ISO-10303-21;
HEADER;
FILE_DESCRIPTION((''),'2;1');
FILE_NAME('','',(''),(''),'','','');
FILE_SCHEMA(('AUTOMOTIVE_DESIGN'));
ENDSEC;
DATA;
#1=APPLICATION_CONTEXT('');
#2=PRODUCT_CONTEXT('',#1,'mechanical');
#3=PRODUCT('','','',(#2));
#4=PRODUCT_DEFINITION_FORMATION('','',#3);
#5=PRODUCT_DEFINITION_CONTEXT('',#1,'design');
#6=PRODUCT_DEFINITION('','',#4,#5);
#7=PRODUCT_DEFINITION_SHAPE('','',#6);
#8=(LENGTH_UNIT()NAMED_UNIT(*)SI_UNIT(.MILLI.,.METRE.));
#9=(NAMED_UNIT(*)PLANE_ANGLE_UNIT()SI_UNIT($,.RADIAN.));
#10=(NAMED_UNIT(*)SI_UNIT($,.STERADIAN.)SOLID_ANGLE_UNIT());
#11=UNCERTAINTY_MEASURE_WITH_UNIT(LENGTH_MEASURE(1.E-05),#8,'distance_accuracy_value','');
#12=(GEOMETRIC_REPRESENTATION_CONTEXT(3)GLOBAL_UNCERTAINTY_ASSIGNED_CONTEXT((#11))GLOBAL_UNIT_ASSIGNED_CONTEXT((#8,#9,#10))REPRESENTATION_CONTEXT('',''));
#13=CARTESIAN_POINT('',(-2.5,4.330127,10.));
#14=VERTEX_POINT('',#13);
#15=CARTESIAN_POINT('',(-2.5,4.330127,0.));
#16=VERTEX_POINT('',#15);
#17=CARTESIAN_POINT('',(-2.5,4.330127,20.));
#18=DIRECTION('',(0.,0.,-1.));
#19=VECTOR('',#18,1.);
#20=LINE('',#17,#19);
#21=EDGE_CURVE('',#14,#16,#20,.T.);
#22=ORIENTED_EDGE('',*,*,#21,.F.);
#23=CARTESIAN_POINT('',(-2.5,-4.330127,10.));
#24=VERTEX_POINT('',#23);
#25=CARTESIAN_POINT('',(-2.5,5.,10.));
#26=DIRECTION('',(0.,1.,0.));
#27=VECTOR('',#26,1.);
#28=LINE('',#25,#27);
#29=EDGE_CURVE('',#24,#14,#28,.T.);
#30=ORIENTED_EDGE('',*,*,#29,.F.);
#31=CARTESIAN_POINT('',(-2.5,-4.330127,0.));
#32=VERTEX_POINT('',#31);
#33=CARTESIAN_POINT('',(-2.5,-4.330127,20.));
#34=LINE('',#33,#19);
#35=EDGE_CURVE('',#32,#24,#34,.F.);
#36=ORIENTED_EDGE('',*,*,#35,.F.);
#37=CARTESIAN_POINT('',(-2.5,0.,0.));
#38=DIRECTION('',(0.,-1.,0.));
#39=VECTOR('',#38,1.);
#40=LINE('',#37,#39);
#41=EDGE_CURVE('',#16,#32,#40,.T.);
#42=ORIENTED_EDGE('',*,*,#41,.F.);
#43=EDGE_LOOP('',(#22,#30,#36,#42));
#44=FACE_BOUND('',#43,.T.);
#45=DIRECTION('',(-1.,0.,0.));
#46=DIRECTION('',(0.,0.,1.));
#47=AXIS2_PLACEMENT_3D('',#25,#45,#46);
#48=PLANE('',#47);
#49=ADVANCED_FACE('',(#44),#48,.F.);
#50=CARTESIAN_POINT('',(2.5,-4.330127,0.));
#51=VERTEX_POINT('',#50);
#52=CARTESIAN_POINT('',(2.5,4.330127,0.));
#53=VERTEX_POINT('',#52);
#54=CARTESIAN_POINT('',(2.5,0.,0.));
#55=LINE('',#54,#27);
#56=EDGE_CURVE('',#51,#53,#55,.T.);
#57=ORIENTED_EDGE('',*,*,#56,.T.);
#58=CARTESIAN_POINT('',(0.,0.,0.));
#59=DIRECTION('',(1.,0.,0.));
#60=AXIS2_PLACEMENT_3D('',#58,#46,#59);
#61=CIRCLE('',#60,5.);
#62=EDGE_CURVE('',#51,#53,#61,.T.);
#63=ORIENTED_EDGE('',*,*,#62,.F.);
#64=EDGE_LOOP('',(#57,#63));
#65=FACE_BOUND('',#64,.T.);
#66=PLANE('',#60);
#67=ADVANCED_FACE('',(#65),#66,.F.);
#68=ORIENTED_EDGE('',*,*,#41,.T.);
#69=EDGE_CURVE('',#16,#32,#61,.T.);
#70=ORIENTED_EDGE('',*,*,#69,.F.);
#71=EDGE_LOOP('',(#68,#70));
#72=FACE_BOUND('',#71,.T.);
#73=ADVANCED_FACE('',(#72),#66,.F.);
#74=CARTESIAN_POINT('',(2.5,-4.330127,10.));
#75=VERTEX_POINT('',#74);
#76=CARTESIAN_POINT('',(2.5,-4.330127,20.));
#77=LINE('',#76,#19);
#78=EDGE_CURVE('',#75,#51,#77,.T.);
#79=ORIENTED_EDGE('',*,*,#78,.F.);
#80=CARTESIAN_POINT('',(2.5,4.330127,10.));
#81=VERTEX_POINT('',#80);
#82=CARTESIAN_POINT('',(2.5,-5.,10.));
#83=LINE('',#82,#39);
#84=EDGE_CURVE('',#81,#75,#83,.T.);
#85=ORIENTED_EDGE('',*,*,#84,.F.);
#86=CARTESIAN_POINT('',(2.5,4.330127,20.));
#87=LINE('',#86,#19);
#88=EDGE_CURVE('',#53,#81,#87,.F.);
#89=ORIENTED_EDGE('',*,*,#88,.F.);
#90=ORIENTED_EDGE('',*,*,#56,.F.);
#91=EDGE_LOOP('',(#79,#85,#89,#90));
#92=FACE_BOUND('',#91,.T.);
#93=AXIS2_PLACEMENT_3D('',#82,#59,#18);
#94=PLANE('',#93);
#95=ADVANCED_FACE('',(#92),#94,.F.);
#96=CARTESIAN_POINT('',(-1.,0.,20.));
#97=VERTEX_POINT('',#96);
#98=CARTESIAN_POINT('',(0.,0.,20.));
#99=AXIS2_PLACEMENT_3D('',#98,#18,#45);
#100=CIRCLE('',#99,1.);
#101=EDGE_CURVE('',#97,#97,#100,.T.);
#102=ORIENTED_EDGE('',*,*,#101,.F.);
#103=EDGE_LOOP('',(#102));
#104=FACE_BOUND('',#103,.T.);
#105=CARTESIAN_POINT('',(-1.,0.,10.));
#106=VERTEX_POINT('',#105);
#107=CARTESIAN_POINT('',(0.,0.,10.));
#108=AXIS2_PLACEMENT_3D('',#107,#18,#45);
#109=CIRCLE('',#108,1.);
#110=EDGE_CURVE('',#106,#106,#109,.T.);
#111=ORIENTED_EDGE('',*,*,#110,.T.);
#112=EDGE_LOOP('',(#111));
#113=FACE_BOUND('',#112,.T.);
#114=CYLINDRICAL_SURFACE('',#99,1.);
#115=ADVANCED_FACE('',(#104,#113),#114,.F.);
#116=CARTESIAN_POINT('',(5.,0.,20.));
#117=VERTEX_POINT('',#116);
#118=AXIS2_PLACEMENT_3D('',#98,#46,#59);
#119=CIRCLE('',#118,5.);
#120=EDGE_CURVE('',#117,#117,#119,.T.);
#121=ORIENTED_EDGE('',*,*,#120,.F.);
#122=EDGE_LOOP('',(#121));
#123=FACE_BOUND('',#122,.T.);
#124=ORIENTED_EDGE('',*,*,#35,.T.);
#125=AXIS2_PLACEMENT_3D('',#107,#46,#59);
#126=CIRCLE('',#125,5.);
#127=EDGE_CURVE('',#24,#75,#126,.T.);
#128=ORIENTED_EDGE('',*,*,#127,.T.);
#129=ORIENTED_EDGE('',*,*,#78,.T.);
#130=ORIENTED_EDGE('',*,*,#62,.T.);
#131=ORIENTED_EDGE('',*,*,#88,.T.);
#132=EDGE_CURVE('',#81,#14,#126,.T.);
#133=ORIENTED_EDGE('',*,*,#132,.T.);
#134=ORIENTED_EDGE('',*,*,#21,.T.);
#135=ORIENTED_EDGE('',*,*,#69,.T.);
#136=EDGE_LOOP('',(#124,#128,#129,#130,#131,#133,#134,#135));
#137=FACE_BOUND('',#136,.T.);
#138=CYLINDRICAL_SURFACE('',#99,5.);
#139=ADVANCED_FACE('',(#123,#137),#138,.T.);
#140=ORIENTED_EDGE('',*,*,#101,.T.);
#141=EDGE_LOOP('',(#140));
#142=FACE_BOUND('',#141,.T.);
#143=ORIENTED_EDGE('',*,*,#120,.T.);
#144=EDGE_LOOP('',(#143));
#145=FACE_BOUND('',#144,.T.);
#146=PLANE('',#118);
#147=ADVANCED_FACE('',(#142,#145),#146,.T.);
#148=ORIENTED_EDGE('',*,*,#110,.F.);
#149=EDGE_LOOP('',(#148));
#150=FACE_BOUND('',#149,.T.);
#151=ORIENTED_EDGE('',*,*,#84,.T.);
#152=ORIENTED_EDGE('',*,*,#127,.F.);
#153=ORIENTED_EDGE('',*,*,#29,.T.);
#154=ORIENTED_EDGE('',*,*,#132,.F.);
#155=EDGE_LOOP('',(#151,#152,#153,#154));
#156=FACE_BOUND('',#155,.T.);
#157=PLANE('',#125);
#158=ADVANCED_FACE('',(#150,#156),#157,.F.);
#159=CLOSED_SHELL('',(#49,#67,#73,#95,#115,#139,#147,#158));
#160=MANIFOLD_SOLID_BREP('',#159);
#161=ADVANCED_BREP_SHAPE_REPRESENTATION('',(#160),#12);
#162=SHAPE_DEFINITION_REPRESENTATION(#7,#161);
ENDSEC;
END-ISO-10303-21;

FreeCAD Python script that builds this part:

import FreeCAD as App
import Part
import Sketcher
from FreeCAD import Vector
Q = App.Units.Quantity

doc = App.newDocument("Part")
body = doc.addObject("PartDesign::Body", "Body")

# Sketch on XY plane
sketch1 = doc.addObject("Sketcher::SketchObject", "Sketch")
body.addObject(sketch1)
sketch1.AttachmentSupport = (doc.XY_Plane, [""])
sketch1.MapMode = "FlatFace"
sketch1.addGeometry(Part.Circle(Vector(0, 0, 0), Vector(0, 0, 1), 5), False)
sketch1.addConstraint([
    Sketcher.Constraint("Coincident", 0, 3, -1, 1),
    Sketcher.Constraint("Diameter", 0, Q("10 mm")),
])
pad1 = doc.addObject("PartDesign::Pad", "Pad")
body.addObject(pad1)
pad1.Profile = sketch1
pad1.Length = 20

# Sketch on XY plane
sketch2 = doc.addObject("Sketcher::SketchObject", "Sketch001")
body.addObject(sketch2)
sketch2.AttachmentSupport = (doc.XY_Plane, [""])
sketch2.MapMode = "FlatFace"
sketch2.addGeometry([
    Part.LineSegment(Vector(2, 5, 0), Vector(2, -5, 0)),
    Part.LineSegment(Vector(2, -5, 0), Vector(-2, -5, 0)),
    Part.LineSegment(Vector(-2, -5, 0), Vector(-2, 5, 0)),
    Part.LineSegment(Vector(-2, 5, 0), Vector(2, 5, 0)),
], False)
sketch2.addConstraint([
    Sketcher.Constraint("Coincident", 0, 2, 1, 1),
    Sketcher.Constraint("Coincident", 1, 2, 2, 1),
    Sketcher.Constraint("Coincident", 2, 2, 3, 1),
    Sketcher.Constraint("Coincident", 3, 2, 0, 1),
    Sketcher.Constraint("Vertical", 0),
    Sketcher.Constraint("Horizontal", 1),
    Sketcher.Constraint("Vertical", 2),
    Sketcher.Constraint("Horizontal", 3),
    Sketcher.Constraint("Symmetric", 0, 2, 2, 2, -1, 1),
    Sketcher.Constraint("DistanceX", 1, 2, 1, 1, Q("5 mm")),
    Sketcher.Constraint("DistanceY", 0, 2, 0, 1, Q("10 mm")),
])
pocket1 = doc.addObject("PartDesign::Pocket", "Pocket")
body.addObject(pocket1)
pocket1.Profile = sketch2
pocket1.Length = 10
pocket1.Reversed = True

# Sketch on XY plane
sketch3 = doc.addObject("Sketcher::SketchObject", "Sketch002")
body.addObject(sketch3)
sketch3.AttachmentSupport = (doc.XY_Plane, [""])
sketch3.MapMode = "FlatFace"
sketch3.AttachmentOffset = App.Placement(Vector(0, 0, 10), App.Rotation())
sketch3.addGeometry(Part.Circle(Vector(0, 0, 0), Vector(0, 0, 1), 1), False)
sketch3.addConstraint([
    Sketcher.Constraint("Coincident", 0, 3, -1, 1),
    Sketcher.Constraint("Diameter", 0, Q("2 mm")),
])
pocket2 = doc.addObject("PartDesign::Pocket", "Pocket001")
body.addObject(pocket2)
pocket2.Profile = sketch3
pocket2.Length = 10
pocket2.Reversed = True

doc.recompute()
